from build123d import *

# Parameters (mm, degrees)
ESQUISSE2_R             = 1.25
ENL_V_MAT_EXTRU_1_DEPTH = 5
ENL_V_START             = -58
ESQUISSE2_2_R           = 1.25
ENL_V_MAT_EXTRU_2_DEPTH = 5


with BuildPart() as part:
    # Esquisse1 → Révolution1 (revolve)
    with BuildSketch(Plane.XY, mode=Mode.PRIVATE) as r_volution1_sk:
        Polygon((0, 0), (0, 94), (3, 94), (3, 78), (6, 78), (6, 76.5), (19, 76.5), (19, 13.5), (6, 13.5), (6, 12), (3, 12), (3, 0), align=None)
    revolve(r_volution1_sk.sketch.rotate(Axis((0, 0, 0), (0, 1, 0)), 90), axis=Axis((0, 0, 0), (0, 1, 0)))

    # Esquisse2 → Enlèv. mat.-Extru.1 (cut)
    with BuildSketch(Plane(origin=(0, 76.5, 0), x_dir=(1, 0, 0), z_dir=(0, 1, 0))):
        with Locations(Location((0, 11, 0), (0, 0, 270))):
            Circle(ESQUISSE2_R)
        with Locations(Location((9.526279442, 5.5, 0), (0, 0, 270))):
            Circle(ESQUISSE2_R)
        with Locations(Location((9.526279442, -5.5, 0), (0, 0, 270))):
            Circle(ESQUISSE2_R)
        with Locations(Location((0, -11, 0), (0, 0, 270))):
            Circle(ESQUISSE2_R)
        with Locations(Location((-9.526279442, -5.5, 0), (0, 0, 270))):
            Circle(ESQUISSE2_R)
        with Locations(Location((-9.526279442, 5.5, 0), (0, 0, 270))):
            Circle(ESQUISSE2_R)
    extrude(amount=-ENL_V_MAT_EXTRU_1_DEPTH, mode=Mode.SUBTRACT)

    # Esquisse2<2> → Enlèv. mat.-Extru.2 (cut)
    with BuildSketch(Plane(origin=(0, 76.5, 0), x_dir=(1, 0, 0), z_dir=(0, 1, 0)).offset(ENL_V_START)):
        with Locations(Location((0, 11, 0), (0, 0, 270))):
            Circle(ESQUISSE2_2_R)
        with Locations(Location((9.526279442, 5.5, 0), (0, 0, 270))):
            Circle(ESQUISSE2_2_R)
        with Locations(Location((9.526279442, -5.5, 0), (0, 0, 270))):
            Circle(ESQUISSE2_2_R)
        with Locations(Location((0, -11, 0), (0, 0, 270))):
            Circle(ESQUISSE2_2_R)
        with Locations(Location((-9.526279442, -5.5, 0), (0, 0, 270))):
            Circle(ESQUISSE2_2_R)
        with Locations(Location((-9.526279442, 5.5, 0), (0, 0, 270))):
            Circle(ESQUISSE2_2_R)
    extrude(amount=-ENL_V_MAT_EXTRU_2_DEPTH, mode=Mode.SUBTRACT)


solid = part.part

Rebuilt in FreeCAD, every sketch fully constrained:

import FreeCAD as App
import Part
import Sketcher
from FreeCAD import Vector
Q = App.Units.Quantity

doc = App.newDocument("Part")
body = doc.addObject("PartDesign::Body", "Body")

# Sketch on XY plane
sketch1 = body.newObject("Sketcher::SketchObject", "Sketch")
sketch1.AttachmentSupport = (doc.getObject("XY_Plane"), [""])
sketch1.MapMode = "FlatFace"
sketch1.addGeometry(Part.LineSegment(Vector(0, 94, 0), Vector(0, 0, 0)), False)
sketch1.addGeometry(Part.LineSegment(Vector(0, 0, 0), Vector(3, 0, 0)), False)
sketch1.addGeometry(Part.LineSegment(Vector(3, 0, 0), Vector(3, 12, 0)), False)
sketch1.addGeometry(Part.LineSegment(Vector(3, 12, 0), Vector(6, 12, 0)), False)
sketch1.addGeometry(Part.LineSegment(Vector(6, 12, 0), Vector(6, 13.5, 0)), False)
sketch1.addGeometry(Part.LineSegment(Vector(6, 13.5, 0), Vector(19, 13.5, 0)), False)
sketch1.addGeometry(Part.LineSegment(Vector(19, 13.5, 0), Vector(19, 76.5, 0)), False)
sketch1.addGeometry(Part.LineSegment(Vector(19, 76.5, 0), Vector(6, 76.5, 0)), False)
sketch1.addGeometry(Part.LineSegment(Vector(6, 76.5, 0), Vector(6, 78, 0)), False)
sketch1.addGeometry(Part.LineSegment(Vector(6, 78, 0), Vector(3, 78, 0)), False)
sketch1.addGeometry(Part.LineSegment(Vector(3, 78, 0), Vector(3, 94, 0)), False)
sketch1.addGeometry(Part.LineSegment(Vector(3, 94, 0), Vector(0, 94, 0)), False)
sketch1.addConstraint(Sketcher.Constraint("Coincident", 0, 2, 1, 1))
sketch1.addConstraint(Sketcher.Constraint("Coincident", 1, 2, 2, 1))
sketch1.addConstraint(Sketcher.Constraint("Coincident", 2, 2, 3, 1))
sketch1.addConstraint(Sketcher.Constraint("Coincident", 3, 2, 4, 1))
sketch1.addConstraint(Sketcher.Constraint("Coincident", 4, 2, 5, 1))
sketch1.addConstraint(Sketcher.Constraint("Coincident", 5, 2, 6, 1))
sketch1.addConstraint(Sketcher.Constraint("Coincident", 6, 2, 7, 1))
sketch1.addConstraint(Sketcher.Constraint("Coincident", 7, 2, 8, 1))
sketch1.addConstraint(Sketcher.Constraint("Coincident", 8, 2, 9, 1))
sketch1.addConstraint(Sketcher.Constraint("Coincident", 9, 2, 10, 1))
sketch1.addConstraint(Sketcher.Constraint("Coincident", 10, 2, 11, 1))
sketch1.addConstraint(Sketcher.Constraint("Coincident", 11, 2, 0, 1))
sketch1.addConstraint(Sketcher.Constraint("Vertical", 0))
sketch1.addConstraint(Sketcher.Constraint("Horizontal", 1))
sketch1.addConstraint(Sketcher.Constraint("Vertical", 2))
sketch1.addConstraint(Sketcher.Constraint("Horizontal", 3))
sketch1.addConstraint(Sketcher.Constraint("Vertical", 4))
sketch1.addConstraint(Sketcher.Constraint("Horizontal", 5))
sketch1.addConstraint(Sketcher.Constraint("Vertical", 6))
sketch1.addConstraint(Sketcher.Constraint("Horizontal", 7))
sketch1.addConstraint(Sketcher.Constraint("Vertical", 8))
sketch1.addConstraint(Sketcher.Constraint("Horizontal", 9))
sketch1.addConstraint(Sketcher.Constraint("Vertical", 10))
sketch1.addConstraint(Sketcher.Constraint("Horizontal", 11))
sketch1.addConstraint(Sketcher.Constraint("Coincident", 0, 2, -1, 1))
sketch1.addConstraint(Sketcher.Constraint("Vertical", 4, 2, 7, 2))
sketch1.addConstraint(Sketcher.Constraint("Vertical", 2, 2, 9, 2))
sketch1.addConstraint(Sketcher.Constraint("Equal", 1, 3))
sketch1.addConstraint(Sketcher.Constraint("Equal", 4, 8))
sketch1.addConstraint(Sketcher.Constraint("DistanceX", 1, 1, 1, 2, Q("3 mm")))
sketch1.addConstraint(Sketcher.Constraint("DistanceX", 5, 1, 5, 2, Q("13 mm")))
sketch1.addConstraint(Sketcher.Constraint("DistanceY", 0, 2, 0, 1, Q("94 mm")))
sketch1.addConstraint(Sketcher.Constraint("DistanceY", 2, 1, 2, 2, Q("12 mm")))
sketch1.addConstraint(Sketcher.Constraint("DistanceY", 6, 1, 6, 2, Q("63 mm")))
sketch1.addConstraint(Sketcher.Constraint("DistanceY", 10, 1, 10, 2, Q("16 mm")))
revolution = body.newObject("PartDesign::Revolution", "Revolution")
revolution.Profile = sketch1
revolution.ReferenceAxis = (sketch1, ["V_Axis"])
revolution.Angle = 360

# Sketch on XZ plane
sketch2 = body.newObject("Sketcher::SketchObject", "Sketch001")
sketch2.AttachmentSupport = (doc.getObject("XZ_Plane"), [""])
sketch2.MapMode = "FlatFace"
sketch2.AttachmentOffset = App.Placement(Vector(0, 0, -76.5), App.Rotation())
sketch2.addGeometry(Part.Circle(Vector(0, -11, 0), Vector(0, 0, 1), 1.2), False)
sketch2.addGeometry(Part.Circle(Vector(9.5, -5.5, 0), Vector(0, 0, 1), 1.2), False)
sketch2.addGeometry(Part.Circle(Vector(9.5, 5.5, 0), Vector(0, 0, 1), 1.2), False)
sketch2.addGeometry(Part.Circle(Vector(0, 11, 0), Vector(0, 0, 1), 1.2), False)
sketch2.addGeometry(Part.Circle(Vector(-9.5, 5.5, 0), Vector(0, 0, 1), 1.2), False)
sketch2.addGeometry(Part.Circle(Vector(-9.5, -5.5, 0), Vector(0, 0, 1), 1.2), False)
sketch2.addConstraint(Sketcher.Constraint("Equal", 0, 1))
sketch2.addConstraint(Sketcher.Constraint("Equal", 1, 2))
sketch2.addConstraint(Sketcher.Constraint("Equal", 2, 3))
sketch2.addConstraint(Sketcher.Constraint("Equal", 3, 4))
sketch2.addConstraint(Sketcher.Constraint("Equal", 4, 5))
sketch2.addConstraint(Sketcher.Constraint("Symmetric", 0, 3, 3, 3, -1, 1))
sketch2.addConstraint(Sketcher.Constraint("Symmetric", 1, 3, 4, 3, -1, 1))
sketch2.addConstraint(Sketcher.Constraint("Symmetric", 2, 3, 5, 3, -1, 1))
sketch2.addConstraint(Sketcher.Constraint("Symmetric", 2, 3, 4, 3, -2))
sketch2.addConstraint(Sketcher.Constraint("PointOnObject", 0, 3, -2))
sketch2.addConstraint(Sketcher.Constraint("Diameter", 0, Q("2.5 mm")))
sketch2.addConstraint(Sketcher.Constraint("DistanceY", 0, 3, -1, 1, Q("11 mm")))
sketch2.addConstraint(Sketcher.Constraint("DistanceY", 1, 3, 2, 3, Q("11 mm")))
sketch2.addConstraint(Sketcher.Constraint("DistanceX", -1, 1, 1, 3, Q("9.526279 mm")))
pocket1 = body.newObject("PartDesign::Pocket", "Pocket")
pocket1.Profile = sketch2
pocket1.Length = 5
pocket1.Reversed = True

# Sketch on XZ plane
sketch3 = body.newObject("Sketcher::SketchObject", "Sketch002")
sketch3.AttachmentSupport = (doc.getObject("XZ_Plane"), [""])
sketch3.MapMode = "FlatFace"
sketch3.AttachmentOffset = App.Placement(Vector(0, 0, -18.5), App.Rotation())
sketch3.addGeometry(Part.Circle(Vector(0, -11, 0), Vector(0, 0, 1), 1.2), False)
sketch3.addGeometry(Part.Circle(Vector(9.5, -5.5, 0), Vector(0, 0, 1), 1.2), False)
sketch3.addGeometry(Part.Circle(Vector(9.5, 5.5, 0), Vector(0, 0, 1), 1.2), False)
sketch3.addGeometry(Part.Circle(Vector(0, 11, 0), Vector(0, 0, 1), 1.2), False)
sketch3.addGeometry(Part.Circle(Vector(-9.5, 5.5, 0), Vector(0, 0, 1), 1.2), False)
sketch3.addGeometry(Part.Circle(Vector(-9.5, -5.5, 0), Vector(0, 0, 1), 1.2), False)
sketch3.addConstraint(Sketcher.Constraint("Equal", 0, 1))
sketch3.addConstraint(Sketcher.Constraint("Equal", 1, 2))
sketch3.addConstraint(Sketcher.Constraint("Equal", 2, 3))
sketch3.addConstraint(Sketcher.Constraint("Equal", 3, 4))
sketch3.addConstraint(Sketcher.Constraint("Equal", 4, 5))
sketch3.addConstraint(Sketcher.Constraint("Symmetric", 0, 3, 3, 3, -1, 1))
sketch3.addConstraint(Sketcher.Constraint("Symmetric", 1, 3, 4, 3, -1, 1))
sketch3.addConstraint(Sketcher.Constraint("Symmetric", 2, 3, 5, 3, -1, 1))
sketch3.addConstraint(Sketcher.Constraint("Symmetric", 2, 3, 4, 3, -2))
sketch3.addConstraint(Sketcher.Constraint("PointOnObject", 0, 3, -2))
sketch3.addConstraint(Sketcher.Constraint("Diameter", 0, Q("2.5 mm")))
sketch3.addConstraint(Sketcher.Constraint("DistanceY", 0, 3, -1, 1, Q("11 mm")))
sketch3.addConstraint(Sketcher.Constraint("DistanceY", 1, 3, 2, 3, Q("11 mm")))
sketch3.addConstraint(Sketcher.Constraint("DistanceX", -1, 1, 1, 3, Q("9.526279 mm")))
pocket2 = body.newObject("PartDesign::Pocket", "Pocket001")
pocket2.Profile = sketch3
pocket2.Length = 5
pocket2.Reversed = True

doc.recompute()
